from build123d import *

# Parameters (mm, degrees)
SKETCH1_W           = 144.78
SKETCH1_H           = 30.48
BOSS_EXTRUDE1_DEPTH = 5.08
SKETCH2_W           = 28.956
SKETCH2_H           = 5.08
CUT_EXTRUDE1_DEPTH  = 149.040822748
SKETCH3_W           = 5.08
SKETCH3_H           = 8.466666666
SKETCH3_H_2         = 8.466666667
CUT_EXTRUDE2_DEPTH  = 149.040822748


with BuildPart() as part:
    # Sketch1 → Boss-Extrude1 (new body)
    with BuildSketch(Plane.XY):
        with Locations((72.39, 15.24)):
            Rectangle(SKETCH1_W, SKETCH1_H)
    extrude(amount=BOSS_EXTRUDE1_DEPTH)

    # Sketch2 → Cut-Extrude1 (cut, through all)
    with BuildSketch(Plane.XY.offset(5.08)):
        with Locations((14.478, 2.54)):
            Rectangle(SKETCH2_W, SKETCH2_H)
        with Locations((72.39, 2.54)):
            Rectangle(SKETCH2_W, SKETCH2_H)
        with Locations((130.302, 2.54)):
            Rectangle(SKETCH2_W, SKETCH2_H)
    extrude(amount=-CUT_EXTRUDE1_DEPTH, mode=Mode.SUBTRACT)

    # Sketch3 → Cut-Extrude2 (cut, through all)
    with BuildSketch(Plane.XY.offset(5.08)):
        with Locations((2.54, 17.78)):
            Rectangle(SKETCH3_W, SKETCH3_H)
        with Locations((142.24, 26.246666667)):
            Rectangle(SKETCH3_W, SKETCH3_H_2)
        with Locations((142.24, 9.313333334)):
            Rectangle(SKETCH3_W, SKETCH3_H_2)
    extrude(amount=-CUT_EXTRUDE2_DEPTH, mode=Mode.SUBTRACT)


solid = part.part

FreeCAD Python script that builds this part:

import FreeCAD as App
import Part
import Sketcher

V = App.Vector
Q = App.Units.Quantity


def add_polygon(sketch, points):
    """Adds a closed chain of lines whose ends are joined by coincident constraints."""
    first, n = sketch.GeometryCount, len(points)
    for a, b in zip(points, points[1:] + points[:1]):
        sketch.addGeometry(Part.LineSegment(App.Vector(*a, 0), App.Vector(*b, 0)), False)
    for i in range(n):
        sketch.addConstraint(Sketcher.Constraint("Coincident", first + i, 2, first + (i + 1) % n, 1))

doc = App.newDocument("Part")
params = doc.addObject("Spreadsheet::Sheet", "Params")
for row, (alias, value) in enumerate([
    ("sketch1_width", "5.7 in"),
    ("sketch1_height", "1.2 in"),
    ("pad1_length", "0.2 in"),
    ("sketch2_height", "0.2 in"),
    ("sketch2_width", "1.14 in"),
    ("sketch3_width", "0.2 in"),
], start=1):
    params.set(f"A{row}", alias)
    params.set(f"B{row}", "=" + value)
    params.setAlias(f"B{row}", alias)

body = doc.addObject("PartDesign::Body", "Body")

sketch1 = doc.addObject("Sketcher::SketchObject", "Sketch")
body.addObject(sketch1)
sketch1.AttachmentSupport = (doc.XY_Plane, [""])
sketch1.MapMode = "FlatFace"
add_polygon(sketch1, [(0, 30), (0, 0), (145, 0), (145, 30)])
sketch1.addConstraint([
    Sketcher.Constraint("Vertical", 0),
    Sketcher.Constraint("Horizontal", 1),
    Sketcher.Constraint("Vertical", 2),
    Sketcher.Constraint("Horizontal", 3),
    Sketcher.Constraint("Coincident", 0, 2, -1, 1),
    Sketcher.Constraint("DistanceX", 1, 1, 1, 2, Q("5.7 in")),
    Sketcher.Constraint("DistanceY", 0, 2, 0, 1, Q("1.2 in")),
])
sketch1.setExpression("Constraints[9]", "Params.sketch1_width")
sketch1.setExpression("Constraints[10]", "Params.sketch1_height")
pad1 = doc.addObject("PartDesign::Pad", "Pad")
body.addObject(pad1)
pad1.Profile = sketch1
pad1.setExpression("Length", "Params.pad1_length")

sketch2 = doc.addObject("Sketcher::SketchObject", "Sketch001")
body.addObject(sketch2)
sketch2.AttachmentSupport = (doc.XY_Plane, [""])
sketch2.MapMode = "FlatFace"
sketch2.AttachmentOffset = App.Placement(V(0, 0, 0.2 * 25.4), App.Rotation())
add_polygon(sketch2, [(0, 5), (0, 0), (29, 0), (29, 5)])
add_polygon(sketch2, [(58, 5), (58, 0), (87, 0), (87, 5)])
add_polygon(sketch2, [(116, 5), (116, 0), (145, 0), (145, 5)])
sketch2.addConstraint([
    Sketcher.Constraint("Vertical", 0),
    Sketcher.Constraint("Horizontal", 1),
    Sketcher.Constraint("Vertical", 2),
    Sketcher.Constraint("Horizontal", 3),
    Sketcher.Constraint("Vertical", 4),
    Sketcher.Constraint("Horizontal", 5),
    Sketcher.Constraint("Vertical", 6),
    Sketcher.Constraint("Horizontal", 7),
    Sketcher.Constraint("Vertical", 8),
    Sketcher.Constraint("Horizontal", 9),
    Sketcher.Constraint("Vertical", 10),
    Sketcher.Constraint("Horizontal", 11),
    Sketcher.Constraint("Coincident", 0, 2, -1, 1),
    Sketcher.Constraint("PointOnObject", 4, 2, -1),
    Sketcher.Constraint("PointOnObject", 8, 2, -1),
    Sketcher.Constraint("Horizontal", 3, 2, 6, 2),
    Sketcher.Constraint("Horizontal", 7, 2, 10, 2),
    Sketcher.Constraint("Equal", 3, 5),
    Sketcher.Constraint("Equal", 7, 9),
    Sketcher.Constraint("DistanceY", 0, 2, 0, 1, Q("0.2 in")),
    Sketcher.Constraint("DistanceX", 1, 1, 1, 2, Q("1.14 in")),
    Sketcher.Constraint("DistanceX", -1, 1, 9, 2, Q("5.7 in")),
    Sketcher.Constraint("DistanceX", -1, 1, 4, 2, Q("2.28 in")),
])
sketch2.setExpression("Constraints[31]", "Params.sketch2_height")
sketch2.setExpression("Constraints[32]", "Params.sketch2_width")
pocket1 = doc.addObject("PartDesign::Pocket", "Pocket")
body.addObject(pocket1)
pocket1.Profile = sketch2
pocket1.Type = "ThroughAll"

sketch3 = doc.addObject("Sketcher::SketchObject", "Sketch002")
body.addObject(sketch3)
sketch3.AttachmentSupport = (doc.XY_Plane, [""])
sketch3.MapMode = "FlatFace"
sketch3.AttachmentOffset = App.Placement(V(0, 0, 0.2 * 25.4), App.Rotation())
add_polygon(sketch3, [(0, 22), (0, 14), (5, 14), (5, 22)])
add_polygon(sketch3, [(140, 30), (140, 22), (145, 22), (145, 30)])
add_polygon(sketch3, [(140, 14), (140, 5), (145, 5), (145, 14)])
sketch3.addConstraint([
    Sketcher.Constraint("Vertical", 0),
    Sketcher.Constraint("Horizontal", 1),
    Sketcher.Constraint("Vertical", 2),
    Sketcher.Constraint("Horizontal", 3),
    Sketcher.Constraint("Vertical", 4),
    Sketcher.Constraint("Horizontal", 5),
    Sketcher.Constraint("Vertical", 6),
    Sketcher.Constraint("Horizontal", 7),
    Sketcher.Constraint("Vertical", 8),
    Sketcher.Constraint("Horizontal", 9),
    Sketcher.Constraint("Vertical", 10),
    Sketcher.Constraint("Horizontal", 11),
    Sketcher.Constraint("PointOnObject", 0, 2, -2),
    Sketcher.Constraint("Horizontal", 3, 2, 4, 2),
    Sketcher.Constraint("Horizontal", 1, 2, 10, 2),
    Sketcher.Constraint("Vertical", 7, 2, 8, 2),
    Sketcher.Constraint("Vertical", 6, 2, 9, 2),
    Sketcher.Constraint("Equal", 3, 5),
    Sketcher.Constraint("Equal", 2, 4),
    Sketcher.Constraint("Equal", 6, 8),
    Sketcher.Constraint("DistanceX", 1, 1, 1, 2, Q("0.2 in")),
    Sketcher.Constraint("DistanceY", 8, 2, 7, 2, Q("1 in")),
    Sketcher.Constraint("DistanceX", -1, 1, 4, 2, Q("5.5 in")),
    Sketcher.Constraint("DistanceY", -1, 1, 6, 2, Q("1.2 in")),
])
sketch3.setExpression("Constraints[32]", "Params.sketch3_width")
pocket2 = doc.addObject("PartDesign::Pocket", "Pocket001")
body.addObject(pocket2)
pocket2.Profile = sketch3
pocket2.Type = "ThroughAll"

doc.recompute()
